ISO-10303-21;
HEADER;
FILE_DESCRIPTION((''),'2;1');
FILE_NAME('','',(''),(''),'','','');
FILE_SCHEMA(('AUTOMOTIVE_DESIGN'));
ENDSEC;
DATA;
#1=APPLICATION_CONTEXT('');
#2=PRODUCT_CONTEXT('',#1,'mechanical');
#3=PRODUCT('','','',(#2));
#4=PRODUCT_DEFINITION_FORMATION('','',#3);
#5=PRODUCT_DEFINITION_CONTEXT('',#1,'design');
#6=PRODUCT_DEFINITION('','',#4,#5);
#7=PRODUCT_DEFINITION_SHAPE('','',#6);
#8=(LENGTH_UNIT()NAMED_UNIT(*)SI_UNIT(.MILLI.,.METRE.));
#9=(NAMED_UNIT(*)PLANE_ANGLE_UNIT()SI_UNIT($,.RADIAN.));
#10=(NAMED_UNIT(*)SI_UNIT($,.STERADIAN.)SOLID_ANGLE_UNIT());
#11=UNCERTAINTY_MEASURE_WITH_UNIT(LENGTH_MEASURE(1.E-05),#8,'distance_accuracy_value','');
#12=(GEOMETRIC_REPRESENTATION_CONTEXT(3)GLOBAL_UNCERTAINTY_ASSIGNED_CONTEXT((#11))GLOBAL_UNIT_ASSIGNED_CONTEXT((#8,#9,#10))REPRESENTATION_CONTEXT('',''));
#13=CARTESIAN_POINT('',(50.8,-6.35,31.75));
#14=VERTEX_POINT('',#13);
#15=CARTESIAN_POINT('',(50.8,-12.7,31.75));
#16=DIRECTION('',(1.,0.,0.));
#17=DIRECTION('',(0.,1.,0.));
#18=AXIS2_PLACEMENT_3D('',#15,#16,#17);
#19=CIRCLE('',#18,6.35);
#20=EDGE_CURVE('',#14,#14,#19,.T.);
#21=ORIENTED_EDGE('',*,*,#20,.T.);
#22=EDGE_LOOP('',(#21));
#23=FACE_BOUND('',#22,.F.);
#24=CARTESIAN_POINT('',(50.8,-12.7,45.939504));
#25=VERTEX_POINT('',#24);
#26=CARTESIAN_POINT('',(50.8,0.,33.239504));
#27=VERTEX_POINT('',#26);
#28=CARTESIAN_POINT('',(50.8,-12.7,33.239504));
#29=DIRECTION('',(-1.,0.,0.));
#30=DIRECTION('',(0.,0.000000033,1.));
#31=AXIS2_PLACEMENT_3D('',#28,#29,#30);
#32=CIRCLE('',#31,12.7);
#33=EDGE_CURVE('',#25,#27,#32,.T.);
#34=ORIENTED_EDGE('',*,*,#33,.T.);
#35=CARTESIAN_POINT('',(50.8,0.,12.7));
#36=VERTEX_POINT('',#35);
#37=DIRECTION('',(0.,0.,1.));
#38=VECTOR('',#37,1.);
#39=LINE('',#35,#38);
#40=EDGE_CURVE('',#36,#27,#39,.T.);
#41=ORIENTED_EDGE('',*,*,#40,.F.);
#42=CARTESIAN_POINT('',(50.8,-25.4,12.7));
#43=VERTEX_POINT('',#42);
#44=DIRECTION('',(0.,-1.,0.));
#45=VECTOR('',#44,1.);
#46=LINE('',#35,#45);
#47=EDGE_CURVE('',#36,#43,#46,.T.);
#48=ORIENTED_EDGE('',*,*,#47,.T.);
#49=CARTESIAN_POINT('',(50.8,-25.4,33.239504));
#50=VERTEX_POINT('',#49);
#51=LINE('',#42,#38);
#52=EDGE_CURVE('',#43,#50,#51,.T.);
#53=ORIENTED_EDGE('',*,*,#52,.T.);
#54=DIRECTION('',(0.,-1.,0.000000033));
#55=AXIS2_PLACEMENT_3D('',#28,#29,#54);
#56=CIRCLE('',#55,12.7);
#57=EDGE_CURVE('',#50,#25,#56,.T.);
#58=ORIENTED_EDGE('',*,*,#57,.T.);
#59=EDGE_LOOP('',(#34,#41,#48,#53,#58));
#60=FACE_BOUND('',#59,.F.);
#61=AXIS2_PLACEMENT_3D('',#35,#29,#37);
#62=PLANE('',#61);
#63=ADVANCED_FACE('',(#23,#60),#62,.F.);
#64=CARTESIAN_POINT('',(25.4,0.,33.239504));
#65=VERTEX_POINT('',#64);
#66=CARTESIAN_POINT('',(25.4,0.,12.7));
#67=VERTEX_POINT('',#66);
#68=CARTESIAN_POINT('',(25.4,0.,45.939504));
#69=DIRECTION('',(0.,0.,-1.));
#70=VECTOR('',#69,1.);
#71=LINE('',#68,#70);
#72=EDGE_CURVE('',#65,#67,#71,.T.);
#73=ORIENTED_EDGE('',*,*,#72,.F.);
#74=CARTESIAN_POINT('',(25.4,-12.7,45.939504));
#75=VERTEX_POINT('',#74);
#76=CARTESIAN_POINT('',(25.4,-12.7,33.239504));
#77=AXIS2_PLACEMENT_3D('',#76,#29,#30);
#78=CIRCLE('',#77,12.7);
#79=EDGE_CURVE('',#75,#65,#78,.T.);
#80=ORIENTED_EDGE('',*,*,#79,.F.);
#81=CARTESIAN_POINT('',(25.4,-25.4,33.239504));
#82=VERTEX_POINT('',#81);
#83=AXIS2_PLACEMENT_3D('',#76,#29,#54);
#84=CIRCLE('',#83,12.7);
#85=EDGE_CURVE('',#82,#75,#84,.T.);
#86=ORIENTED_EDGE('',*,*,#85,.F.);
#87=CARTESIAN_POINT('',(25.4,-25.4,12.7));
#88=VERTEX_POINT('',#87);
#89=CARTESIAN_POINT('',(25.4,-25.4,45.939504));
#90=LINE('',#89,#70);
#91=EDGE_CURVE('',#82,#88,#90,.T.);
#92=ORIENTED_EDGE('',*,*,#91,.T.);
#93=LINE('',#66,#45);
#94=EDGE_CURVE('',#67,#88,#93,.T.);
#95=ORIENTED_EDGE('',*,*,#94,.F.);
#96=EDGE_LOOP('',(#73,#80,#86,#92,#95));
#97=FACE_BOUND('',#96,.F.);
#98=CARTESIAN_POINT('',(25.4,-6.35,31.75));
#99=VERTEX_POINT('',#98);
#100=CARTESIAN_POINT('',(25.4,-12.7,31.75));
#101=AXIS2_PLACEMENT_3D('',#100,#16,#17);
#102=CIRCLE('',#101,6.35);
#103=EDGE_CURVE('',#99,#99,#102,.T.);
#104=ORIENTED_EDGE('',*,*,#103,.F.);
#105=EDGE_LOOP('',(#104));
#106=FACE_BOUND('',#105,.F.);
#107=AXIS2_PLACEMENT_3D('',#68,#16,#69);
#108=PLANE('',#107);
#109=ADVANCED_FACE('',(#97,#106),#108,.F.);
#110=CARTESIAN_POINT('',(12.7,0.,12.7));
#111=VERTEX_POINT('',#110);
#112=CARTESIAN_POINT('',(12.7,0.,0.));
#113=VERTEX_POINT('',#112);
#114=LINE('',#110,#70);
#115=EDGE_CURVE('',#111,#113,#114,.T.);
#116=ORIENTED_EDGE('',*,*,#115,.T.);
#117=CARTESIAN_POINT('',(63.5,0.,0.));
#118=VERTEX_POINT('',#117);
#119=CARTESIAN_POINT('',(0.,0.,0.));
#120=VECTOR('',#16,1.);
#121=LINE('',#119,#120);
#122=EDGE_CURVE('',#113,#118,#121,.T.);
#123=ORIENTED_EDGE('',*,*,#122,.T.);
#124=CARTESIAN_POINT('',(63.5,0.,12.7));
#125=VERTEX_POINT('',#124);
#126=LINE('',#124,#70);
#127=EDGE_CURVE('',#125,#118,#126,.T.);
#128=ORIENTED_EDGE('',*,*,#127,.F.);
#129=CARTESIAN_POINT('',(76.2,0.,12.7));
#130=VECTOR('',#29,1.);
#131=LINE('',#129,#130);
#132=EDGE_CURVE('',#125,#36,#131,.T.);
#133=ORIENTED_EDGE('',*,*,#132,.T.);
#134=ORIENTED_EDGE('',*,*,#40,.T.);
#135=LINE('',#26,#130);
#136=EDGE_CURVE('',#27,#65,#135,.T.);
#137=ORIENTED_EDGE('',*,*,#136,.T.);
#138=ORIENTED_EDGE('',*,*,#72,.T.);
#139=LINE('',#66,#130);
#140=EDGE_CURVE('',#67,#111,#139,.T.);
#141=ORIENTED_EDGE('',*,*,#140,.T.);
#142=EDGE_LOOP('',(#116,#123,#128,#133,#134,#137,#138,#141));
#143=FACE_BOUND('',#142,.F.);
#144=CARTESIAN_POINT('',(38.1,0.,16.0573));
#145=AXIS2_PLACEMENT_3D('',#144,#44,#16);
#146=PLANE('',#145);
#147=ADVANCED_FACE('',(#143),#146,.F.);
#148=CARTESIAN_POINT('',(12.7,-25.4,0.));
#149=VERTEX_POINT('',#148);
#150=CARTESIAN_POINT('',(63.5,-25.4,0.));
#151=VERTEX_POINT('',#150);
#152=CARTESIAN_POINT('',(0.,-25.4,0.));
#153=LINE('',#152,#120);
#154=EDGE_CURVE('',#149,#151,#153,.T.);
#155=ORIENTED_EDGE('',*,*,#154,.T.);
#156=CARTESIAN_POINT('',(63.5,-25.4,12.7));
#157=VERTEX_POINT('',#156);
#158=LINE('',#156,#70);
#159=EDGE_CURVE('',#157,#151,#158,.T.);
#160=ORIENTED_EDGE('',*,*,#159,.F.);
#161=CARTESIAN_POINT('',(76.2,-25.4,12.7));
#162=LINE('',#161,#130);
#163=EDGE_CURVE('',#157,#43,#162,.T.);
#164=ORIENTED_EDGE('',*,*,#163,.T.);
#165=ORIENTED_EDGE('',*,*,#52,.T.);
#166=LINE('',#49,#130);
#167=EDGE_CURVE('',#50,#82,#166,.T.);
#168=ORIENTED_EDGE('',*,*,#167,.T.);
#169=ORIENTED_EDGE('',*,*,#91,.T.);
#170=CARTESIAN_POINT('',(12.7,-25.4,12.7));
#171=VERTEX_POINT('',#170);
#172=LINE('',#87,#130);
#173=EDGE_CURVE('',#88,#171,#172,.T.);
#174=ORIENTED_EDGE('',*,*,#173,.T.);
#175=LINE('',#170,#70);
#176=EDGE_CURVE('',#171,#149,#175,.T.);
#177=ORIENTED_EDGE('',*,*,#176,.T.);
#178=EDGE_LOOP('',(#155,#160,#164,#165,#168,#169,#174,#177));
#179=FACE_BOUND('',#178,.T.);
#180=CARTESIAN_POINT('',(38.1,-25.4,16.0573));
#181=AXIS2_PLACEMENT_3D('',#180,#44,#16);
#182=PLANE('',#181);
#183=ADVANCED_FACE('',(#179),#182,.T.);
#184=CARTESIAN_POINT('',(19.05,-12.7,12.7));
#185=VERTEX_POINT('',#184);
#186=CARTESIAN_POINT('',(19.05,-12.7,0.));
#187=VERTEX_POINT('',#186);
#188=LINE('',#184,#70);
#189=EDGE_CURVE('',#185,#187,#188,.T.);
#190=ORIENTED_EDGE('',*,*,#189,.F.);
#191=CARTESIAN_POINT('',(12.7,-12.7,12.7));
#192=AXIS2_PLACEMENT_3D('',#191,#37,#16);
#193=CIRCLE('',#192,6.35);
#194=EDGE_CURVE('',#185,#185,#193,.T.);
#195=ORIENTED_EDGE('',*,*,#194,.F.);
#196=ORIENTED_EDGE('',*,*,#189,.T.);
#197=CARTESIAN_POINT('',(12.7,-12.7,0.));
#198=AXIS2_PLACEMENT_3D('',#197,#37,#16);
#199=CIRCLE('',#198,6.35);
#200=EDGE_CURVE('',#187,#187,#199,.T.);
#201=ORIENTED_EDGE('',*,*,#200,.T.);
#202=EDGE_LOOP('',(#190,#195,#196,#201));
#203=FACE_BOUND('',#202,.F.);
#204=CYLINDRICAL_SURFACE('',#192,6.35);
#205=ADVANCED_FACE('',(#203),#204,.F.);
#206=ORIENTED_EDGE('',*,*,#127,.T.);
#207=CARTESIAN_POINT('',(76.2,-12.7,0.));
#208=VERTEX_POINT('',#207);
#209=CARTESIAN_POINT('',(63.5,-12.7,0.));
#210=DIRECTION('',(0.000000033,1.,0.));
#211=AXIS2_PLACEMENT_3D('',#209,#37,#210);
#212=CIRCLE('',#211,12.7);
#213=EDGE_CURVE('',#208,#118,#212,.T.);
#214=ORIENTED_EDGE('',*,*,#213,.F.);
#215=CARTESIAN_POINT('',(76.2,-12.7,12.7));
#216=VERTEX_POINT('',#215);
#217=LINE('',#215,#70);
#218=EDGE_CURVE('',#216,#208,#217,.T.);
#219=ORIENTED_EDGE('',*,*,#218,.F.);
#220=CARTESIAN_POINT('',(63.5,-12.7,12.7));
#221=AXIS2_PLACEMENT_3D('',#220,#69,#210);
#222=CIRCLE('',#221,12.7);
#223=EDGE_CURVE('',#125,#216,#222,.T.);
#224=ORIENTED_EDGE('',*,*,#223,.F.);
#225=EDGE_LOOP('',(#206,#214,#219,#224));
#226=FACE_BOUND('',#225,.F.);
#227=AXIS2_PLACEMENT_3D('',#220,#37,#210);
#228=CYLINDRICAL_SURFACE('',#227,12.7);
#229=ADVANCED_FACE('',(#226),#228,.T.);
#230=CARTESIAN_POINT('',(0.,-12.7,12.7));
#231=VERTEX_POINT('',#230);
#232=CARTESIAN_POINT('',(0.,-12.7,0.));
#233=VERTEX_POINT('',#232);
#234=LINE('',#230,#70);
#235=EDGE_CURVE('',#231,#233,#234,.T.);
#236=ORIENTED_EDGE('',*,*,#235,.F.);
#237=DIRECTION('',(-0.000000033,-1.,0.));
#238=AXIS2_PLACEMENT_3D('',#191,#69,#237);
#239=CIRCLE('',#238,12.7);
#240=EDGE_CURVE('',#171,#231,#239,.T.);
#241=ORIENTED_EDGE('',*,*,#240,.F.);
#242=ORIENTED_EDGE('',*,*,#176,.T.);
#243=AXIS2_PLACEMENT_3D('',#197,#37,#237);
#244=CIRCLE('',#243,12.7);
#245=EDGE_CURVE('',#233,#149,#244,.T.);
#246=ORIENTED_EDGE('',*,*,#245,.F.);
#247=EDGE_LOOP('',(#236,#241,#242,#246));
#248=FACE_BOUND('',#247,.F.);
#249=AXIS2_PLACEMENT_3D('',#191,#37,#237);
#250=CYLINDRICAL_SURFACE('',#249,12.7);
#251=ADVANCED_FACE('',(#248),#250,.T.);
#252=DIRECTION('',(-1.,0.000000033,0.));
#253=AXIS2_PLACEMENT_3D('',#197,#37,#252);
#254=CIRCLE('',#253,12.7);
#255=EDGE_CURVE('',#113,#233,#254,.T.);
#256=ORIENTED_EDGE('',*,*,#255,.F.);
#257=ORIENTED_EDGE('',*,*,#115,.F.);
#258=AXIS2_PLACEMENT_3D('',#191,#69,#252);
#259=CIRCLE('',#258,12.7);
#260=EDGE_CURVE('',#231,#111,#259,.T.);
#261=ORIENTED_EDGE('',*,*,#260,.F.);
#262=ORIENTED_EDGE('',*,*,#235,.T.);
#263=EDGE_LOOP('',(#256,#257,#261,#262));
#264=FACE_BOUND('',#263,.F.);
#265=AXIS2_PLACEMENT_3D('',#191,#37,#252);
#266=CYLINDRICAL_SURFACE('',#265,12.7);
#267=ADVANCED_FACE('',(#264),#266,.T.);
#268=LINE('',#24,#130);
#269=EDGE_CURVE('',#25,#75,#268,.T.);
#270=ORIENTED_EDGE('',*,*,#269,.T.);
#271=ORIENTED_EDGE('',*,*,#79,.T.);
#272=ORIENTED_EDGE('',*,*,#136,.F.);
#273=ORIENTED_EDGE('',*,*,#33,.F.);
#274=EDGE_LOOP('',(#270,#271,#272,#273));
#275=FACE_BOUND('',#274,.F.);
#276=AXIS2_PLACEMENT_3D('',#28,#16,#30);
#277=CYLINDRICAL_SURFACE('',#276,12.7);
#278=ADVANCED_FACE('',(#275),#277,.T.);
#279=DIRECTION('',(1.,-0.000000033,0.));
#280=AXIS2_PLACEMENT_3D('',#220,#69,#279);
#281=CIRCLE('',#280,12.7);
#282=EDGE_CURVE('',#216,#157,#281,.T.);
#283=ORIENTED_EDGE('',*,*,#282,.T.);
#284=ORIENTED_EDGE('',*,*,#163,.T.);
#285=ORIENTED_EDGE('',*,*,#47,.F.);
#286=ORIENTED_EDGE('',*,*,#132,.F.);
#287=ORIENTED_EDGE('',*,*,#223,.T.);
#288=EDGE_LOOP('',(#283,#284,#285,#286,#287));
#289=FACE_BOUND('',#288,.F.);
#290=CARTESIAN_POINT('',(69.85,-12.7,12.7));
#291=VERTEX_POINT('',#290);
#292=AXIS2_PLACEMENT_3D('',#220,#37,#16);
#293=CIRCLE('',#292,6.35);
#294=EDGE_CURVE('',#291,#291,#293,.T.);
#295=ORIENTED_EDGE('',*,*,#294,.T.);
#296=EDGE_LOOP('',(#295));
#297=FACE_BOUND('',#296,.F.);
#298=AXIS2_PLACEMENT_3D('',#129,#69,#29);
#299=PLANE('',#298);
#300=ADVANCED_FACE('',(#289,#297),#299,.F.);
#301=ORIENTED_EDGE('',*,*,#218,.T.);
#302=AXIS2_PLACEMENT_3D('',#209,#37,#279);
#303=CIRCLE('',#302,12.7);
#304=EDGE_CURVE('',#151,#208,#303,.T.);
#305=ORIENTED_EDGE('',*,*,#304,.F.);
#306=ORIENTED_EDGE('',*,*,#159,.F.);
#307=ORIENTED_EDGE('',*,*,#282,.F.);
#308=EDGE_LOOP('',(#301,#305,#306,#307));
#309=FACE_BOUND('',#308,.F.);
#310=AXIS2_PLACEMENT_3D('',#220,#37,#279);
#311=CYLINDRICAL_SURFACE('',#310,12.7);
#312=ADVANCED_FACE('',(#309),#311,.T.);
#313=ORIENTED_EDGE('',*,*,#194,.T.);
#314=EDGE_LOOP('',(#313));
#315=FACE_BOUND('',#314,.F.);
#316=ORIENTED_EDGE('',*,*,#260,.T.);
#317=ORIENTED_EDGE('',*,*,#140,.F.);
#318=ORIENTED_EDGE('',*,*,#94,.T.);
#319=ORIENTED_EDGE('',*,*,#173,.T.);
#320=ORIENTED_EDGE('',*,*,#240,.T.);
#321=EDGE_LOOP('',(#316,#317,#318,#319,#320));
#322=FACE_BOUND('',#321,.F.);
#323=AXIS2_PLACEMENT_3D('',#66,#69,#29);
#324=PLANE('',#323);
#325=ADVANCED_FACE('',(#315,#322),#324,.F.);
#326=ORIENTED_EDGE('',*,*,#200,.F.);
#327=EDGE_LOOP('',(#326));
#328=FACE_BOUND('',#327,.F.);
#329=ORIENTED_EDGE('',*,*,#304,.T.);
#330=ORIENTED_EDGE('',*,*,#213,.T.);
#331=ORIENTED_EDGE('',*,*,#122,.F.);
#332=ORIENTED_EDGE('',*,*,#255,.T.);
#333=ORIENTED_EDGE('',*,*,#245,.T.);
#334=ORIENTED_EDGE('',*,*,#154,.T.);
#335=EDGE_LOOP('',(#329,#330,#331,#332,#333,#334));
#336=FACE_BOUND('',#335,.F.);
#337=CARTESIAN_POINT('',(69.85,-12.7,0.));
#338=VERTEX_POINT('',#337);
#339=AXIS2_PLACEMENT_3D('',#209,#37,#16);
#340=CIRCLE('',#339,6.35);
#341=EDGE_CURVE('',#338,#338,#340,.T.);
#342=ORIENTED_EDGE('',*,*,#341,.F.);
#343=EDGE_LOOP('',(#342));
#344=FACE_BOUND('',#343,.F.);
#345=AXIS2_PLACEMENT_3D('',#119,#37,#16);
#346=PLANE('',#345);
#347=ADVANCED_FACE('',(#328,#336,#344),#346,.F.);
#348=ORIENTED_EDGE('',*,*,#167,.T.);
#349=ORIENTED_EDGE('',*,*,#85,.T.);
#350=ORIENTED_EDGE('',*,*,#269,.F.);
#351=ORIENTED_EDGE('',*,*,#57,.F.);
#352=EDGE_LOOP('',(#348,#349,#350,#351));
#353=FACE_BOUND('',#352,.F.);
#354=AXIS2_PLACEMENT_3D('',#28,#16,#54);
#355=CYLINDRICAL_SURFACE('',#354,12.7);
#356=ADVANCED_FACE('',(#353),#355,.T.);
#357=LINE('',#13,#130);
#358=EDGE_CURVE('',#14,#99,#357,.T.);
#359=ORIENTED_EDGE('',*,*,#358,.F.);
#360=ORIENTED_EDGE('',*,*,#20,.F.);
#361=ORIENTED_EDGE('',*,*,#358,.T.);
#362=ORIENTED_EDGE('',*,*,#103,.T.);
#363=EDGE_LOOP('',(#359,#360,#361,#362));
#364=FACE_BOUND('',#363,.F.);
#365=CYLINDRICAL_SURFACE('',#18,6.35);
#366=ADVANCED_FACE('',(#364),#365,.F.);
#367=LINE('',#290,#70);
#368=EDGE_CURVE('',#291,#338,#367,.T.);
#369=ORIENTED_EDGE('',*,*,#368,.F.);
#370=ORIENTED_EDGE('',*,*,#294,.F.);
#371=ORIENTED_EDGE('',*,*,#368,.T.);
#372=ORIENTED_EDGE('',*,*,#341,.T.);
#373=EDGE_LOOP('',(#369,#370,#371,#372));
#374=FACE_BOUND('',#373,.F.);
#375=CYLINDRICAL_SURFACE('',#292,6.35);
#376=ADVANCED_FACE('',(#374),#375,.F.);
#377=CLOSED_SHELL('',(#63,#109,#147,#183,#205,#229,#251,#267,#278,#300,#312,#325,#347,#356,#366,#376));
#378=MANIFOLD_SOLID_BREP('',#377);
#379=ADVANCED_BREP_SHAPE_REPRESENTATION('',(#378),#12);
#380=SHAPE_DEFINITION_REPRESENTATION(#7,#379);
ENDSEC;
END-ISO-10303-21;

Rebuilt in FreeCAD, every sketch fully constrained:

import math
import FreeCAD as App
import Part
import Sketcher
Q = App.Units.Quantity

doc = App.newDocument("Part")
body = doc.addObject("PartDesign::Body", "Body")

# Sketch on XZ plane
sketch1 = body.newObject("Sketcher::SketchObject", "Sketch")
sketch1.AttachmentSupport = (doc.getObject("XZ_Plane"), [""])
sketch1.MapMode = "FlatFace"
sketch1.addGeometry([
    Part.LineSegment(App.Vector(0, 13, 0), App.Vector(0, 0, 0)),  # 0
    Part.LineSegment(App.Vector(0, 0, 0), App.Vector(76, 0, 0)),  # 1
    Part.LineSegment(App.Vector(76, 0, 0), App.Vector(76, 13, 0)),  # 2
    Part.LineSegment(App.Vector(76, 13, 0), App.Vector(51, 13, 0)),  # 3
    Part.LineSegment(App.Vector(51, 13, 0), App.Vector(51, 46, 0)),  # 4
    Part.LineSegment(App.Vector(51, 46, 0), App.Vector(25, 46, 0)),  # 5
    Part.LineSegment(App.Vector(25, 46, 0), App.Vector(25, 13, 0)),  # 6
    Part.LineSegment(App.Vector(25, 13, 0), App.Vector(0, 13, 0)),  # 7
], False)
sketch1.addConstraint([
    Sketcher.Constraint("Coincident", 0, 2, 1, 1),
    Sketcher.Constraint("Coincident", 1, 2, 2, 1),
    Sketcher.Constraint("Coincident", 2, 2, 3, 1),
    Sketcher.Constraint("Coincident", 3, 2, 4, 1),
    Sketcher.Constraint("Coincident", 4, 2, 5, 1),
    Sketcher.Constraint("Coincident", 5, 2, 6, 1),
    Sketcher.Constraint("Coincident", 6, 2, 7, 1),
    Sketcher.Constraint("Coincident", 7, 2, 0, 1),
    Sketcher.Constraint("Vertical", 0),
    Sketcher.Constraint("Horizontal", 1),
    Sketcher.Constraint("Vertical", 2),
    Sketcher.Constraint("Horizontal", 3),
    Sketcher.Constraint("Vertical", 4),
    Sketcher.Constraint("Horizontal", 5),
    Sketcher.Constraint("Vertical", 6),
    Sketcher.Constraint("Horizontal", 7),
    Sketcher.Constraint("Coincident", 0, 2, -1, 1),
    Sketcher.Constraint("Horizontal", 3, 2, 6, 2),
    Sketcher.Constraint("Equal", 3, 5),
    Sketcher.Constraint("Equal", 5, 7),
    Sketcher.Constraint("DistanceX", 1, 1, 1, 2, Q("3 in")),
    Sketcher.Constraint("DistanceY", 0, 2, 0, 1, Q("0.5 in")),
    Sketcher.Constraint("DistanceY", 4, 1, 4, 2, Q("33.239504 mm")),
])
pad1 = body.newObject("PartDesign::Pad", "Pad")
pad1.Profile = sketch1
pad1.Length = Q("1 in")

# Sketch on XY plane
sketch2 = body.newObject("Sketcher::SketchObject", "Sketch001")
sketch2.AttachmentSupport = (doc.getObject("XY_Plane"), [""])
sketch2.MapMode = "FlatFace"
sketch2.AttachmentOffset = App.Placement(App.Vector(0, 0, 0.5 * 25.4), App.Rotation())
sketch2.addGeometry([
    Part.ArcOfCircle(Part.Circle(App.Vector(13, -13, 0), App.Vector(0, 0, 1), 13), math.radians(90), math.radians(180)),  # 0
    Part.LineSegment(App.Vector(13, 0, 0), App.Vector(0, 0, 0)),  # 1
    Part.LineSegment(App.Vector(0, 0, 0), App.Vector(0, -13, 0)),  # 2
    Part.Circle(App.Vector(13, -13, 0), App.Vector(0, 0, 1), 6),  # 3
    Part.ArcOfCircle(Part.Circle(App.Vector(13, -13, 0), App.Vector(0, 0, 1), 13), math.radians(-180), math.radians(-90)),  # 4
    Part.LineSegment(App.Vector(0, -13, 0), App.Vector(0, -25, 0)),  # 5
    Part.LineSegment(App.Vector(0, -25, 0), App.Vector(13, -25, 0)),  # 6
    Part.Circle(App.Vector(64, -13, 0), App.Vector(0, 0, 1), 6),  # 7
    Part.ArcOfCircle(Part.Circle(App.Vector(63, -13, 0), App.Vector(0, 0, 1), 13), math.radians(0), math.radians(90)),  # 8
    Part.LineSegment(App.Vector(76, -13, 0), App.Vector(76, 0, 0)),  # 9
    Part.LineSegment(App.Vector(76, 0, 0), App.Vector(64, 0, 0)),  # 10
    Part.ArcOfCircle(Part.Circle(App.Vector(63, -13, 0), App.Vector(0, 0, 1), 13), math.radians(-90), math.radians(0)),  # 11
    Part.LineSegment(App.Vector(64, -25, 0), App.Vector(76, -25, 0)),  # 12
    Part.LineSegment(App.Vector(76, -25, 0), App.Vector(76, -13, 0)),  # 13
], False)
sketch2.addConstraint([
    Sketcher.Constraint("Tangent", 0, 1, 1, 1),
    Sketcher.Constraint("Coincident", 1, 2, 2, 1),
    Sketcher.Constraint("Tangent", 2, 2, 0, 2),
    Sketcher.Constraint("Tangent", 4, 1, 5, 1),
    Sketcher.Constraint("Coincident", 5, 2, 6, 1),
    Sketcher.Constraint("Tangent", 6, 2, 4, 2),
    Sketcher.Constraint("Tangent", 8, 1, 9, 1),
    Sketcher.Constraint("Coincident", 9, 2, 10, 1),
    Sketcher.Constraint("Tangent", 10, 2, 8, 2),
    Sketcher.Constraint("Tangent", 11, 1, 12, 1),
    Sketcher.Constraint("Coincident", 12, 2, 13, 1),
    Sketcher.Constraint("Tangent", 13, 2, 11, 2),
    Sketcher.Constraint("Horizontal", 1),
    Sketcher.Constraint("Vertical", 2),
    Sketcher.Constraint("Vertical", 5),
    Sketcher.Constraint("Horizontal", 6),
    Sketcher.Constraint("Vertical", 9),
    Sketcher.Constraint("Horizontal", 10),
    Sketcher.Constraint("Horizontal", 12),
    Sketcher.Constraint("Vertical", 13),
    Sketcher.Constraint("Coincident", 1, 2, -1, 1),
    Sketcher.Constraint("Coincident", 3, 3, 0, 3),
    Sketcher.Constraint("Coincident", 4, 3, 0, 3),
    Sketcher.Constraint("Coincident", 8, 3, 7, 3),
    Sketcher.Constraint("Coincident", 11, 3, 7, 3),
    Sketcher.Constraint("Equal", 0, 4),
    Sketcher.Constraint("Equal", 3, 7),
    Sketcher.Constraint("Equal", 4, 8),
    Sketcher.Constraint("Equal", 8, 11),
    Sketcher.Constraint("PointOnObject", 9, 2, -1),
    Sketcher.Constraint("Diameter", 3, Q("0.5 in")),
    Sketcher.Constraint("Radius", 0, Q("0.5 in")),
    Sketcher.Constraint("DistanceX", -1, 1, 8, 1, Q("3 in")),
])
pocket1 = body.newObject("PartDesign::Pocket", "Pocket")
pocket1.Profile = sketch2
pocket1.Length = Q("1 in")

# Sketch on YZ plane
sketch3 = body.newObject("Sketcher::SketchObject", "Sketch002")
sketch3.AttachmentSupport = (doc.getObject("YZ_Plane"), [""])
sketch3.MapMode = "FlatFace"
sketch3.AttachmentOffset = App.Placement(App.Vector(0, 0, 2 * 25.4), App.Rotation())
sketch3.addGeometry([
    Part.Circle(App.Vector(-13, 32, 0), App.Vector(0, 0, 1), 6),  # 0
    Part.ArcOfCircle(Part.Circle(App.Vector(-13, 33, 0), App.Vector(0, 0, 1), 13), math.radians(0), math.radians(90)),  # 1
    Part.LineSegment(App.Vector(0, 33, 0), App.Vector(0, 46, 0)),  # 2
    Part.LineSegment(App.Vector(0, 46, 0), App.Vector(-13, 46, 0)),  # 3
    Part.ArcOfCircle(Part.Circle(App.Vector(-13, 33, 0), App.Vector(0, 0, 1), 13), math.radians(90), math.radians(180)),  # 4
    Part.LineSegment(App.Vector(-13, 46, 0), App.Vector(-25, 46, 0)),  # 5
    Part.LineSegment(App.Vector(-25, 46, 0), App.Vector(-25, 33, 0)),  # 6
], False)
sketch3.addConstraint([
    Sketcher.Constraint("Tangent", 1, 1, 2, 1),
    Sketcher.Constraint("Coincident", 2, 2, 3, 1),
    Sketcher.Constraint("Tangent", 3, 2, 1, 2),
    Sketcher.Constraint("Tangent", 4, 1, 5, 1),
    Sketcher.Constraint("Coincident", 5, 2, 6, 1),
    Sketcher.Constraint("Tangent", 6, 2, 4, 2),
    Sketcher.Constraint("Vertical", 2),
    Sketcher.Constraint("Horizontal", 3),
    Sketcher.Constraint("Horizontal", 5),
    Sketcher.Constraint("Vertical", 6),
    Sketcher.Constraint("Coincident", 4, 3, 1, 3),
    Sketcher.Constraint("Equal", 1, 4),
    Sketcher.Constraint("PointOnObject", 1, 1, -2),
    Sketcher.Constraint("Vertical", 0, 3, 1, 3),
    Sketcher.Constraint("Diameter", 0, Q("0.5 in")),
    Sketcher.Constraint("Radius", 1, Q("0.5 in")),
    Sketcher.Constraint("DistanceY", -1, 1, 0, 3, Q("1.25 in")),
    Sketcher.Constraint("DistanceY", -1, 1, 1, 3, Q("33.239504 mm")),
])
pocket2 = body.newObject("PartDesign::Pocket", "Pocket001")
pocket2.Profile = sketch3
pocket2.Length = Q("1 in")

doc.recompute()
